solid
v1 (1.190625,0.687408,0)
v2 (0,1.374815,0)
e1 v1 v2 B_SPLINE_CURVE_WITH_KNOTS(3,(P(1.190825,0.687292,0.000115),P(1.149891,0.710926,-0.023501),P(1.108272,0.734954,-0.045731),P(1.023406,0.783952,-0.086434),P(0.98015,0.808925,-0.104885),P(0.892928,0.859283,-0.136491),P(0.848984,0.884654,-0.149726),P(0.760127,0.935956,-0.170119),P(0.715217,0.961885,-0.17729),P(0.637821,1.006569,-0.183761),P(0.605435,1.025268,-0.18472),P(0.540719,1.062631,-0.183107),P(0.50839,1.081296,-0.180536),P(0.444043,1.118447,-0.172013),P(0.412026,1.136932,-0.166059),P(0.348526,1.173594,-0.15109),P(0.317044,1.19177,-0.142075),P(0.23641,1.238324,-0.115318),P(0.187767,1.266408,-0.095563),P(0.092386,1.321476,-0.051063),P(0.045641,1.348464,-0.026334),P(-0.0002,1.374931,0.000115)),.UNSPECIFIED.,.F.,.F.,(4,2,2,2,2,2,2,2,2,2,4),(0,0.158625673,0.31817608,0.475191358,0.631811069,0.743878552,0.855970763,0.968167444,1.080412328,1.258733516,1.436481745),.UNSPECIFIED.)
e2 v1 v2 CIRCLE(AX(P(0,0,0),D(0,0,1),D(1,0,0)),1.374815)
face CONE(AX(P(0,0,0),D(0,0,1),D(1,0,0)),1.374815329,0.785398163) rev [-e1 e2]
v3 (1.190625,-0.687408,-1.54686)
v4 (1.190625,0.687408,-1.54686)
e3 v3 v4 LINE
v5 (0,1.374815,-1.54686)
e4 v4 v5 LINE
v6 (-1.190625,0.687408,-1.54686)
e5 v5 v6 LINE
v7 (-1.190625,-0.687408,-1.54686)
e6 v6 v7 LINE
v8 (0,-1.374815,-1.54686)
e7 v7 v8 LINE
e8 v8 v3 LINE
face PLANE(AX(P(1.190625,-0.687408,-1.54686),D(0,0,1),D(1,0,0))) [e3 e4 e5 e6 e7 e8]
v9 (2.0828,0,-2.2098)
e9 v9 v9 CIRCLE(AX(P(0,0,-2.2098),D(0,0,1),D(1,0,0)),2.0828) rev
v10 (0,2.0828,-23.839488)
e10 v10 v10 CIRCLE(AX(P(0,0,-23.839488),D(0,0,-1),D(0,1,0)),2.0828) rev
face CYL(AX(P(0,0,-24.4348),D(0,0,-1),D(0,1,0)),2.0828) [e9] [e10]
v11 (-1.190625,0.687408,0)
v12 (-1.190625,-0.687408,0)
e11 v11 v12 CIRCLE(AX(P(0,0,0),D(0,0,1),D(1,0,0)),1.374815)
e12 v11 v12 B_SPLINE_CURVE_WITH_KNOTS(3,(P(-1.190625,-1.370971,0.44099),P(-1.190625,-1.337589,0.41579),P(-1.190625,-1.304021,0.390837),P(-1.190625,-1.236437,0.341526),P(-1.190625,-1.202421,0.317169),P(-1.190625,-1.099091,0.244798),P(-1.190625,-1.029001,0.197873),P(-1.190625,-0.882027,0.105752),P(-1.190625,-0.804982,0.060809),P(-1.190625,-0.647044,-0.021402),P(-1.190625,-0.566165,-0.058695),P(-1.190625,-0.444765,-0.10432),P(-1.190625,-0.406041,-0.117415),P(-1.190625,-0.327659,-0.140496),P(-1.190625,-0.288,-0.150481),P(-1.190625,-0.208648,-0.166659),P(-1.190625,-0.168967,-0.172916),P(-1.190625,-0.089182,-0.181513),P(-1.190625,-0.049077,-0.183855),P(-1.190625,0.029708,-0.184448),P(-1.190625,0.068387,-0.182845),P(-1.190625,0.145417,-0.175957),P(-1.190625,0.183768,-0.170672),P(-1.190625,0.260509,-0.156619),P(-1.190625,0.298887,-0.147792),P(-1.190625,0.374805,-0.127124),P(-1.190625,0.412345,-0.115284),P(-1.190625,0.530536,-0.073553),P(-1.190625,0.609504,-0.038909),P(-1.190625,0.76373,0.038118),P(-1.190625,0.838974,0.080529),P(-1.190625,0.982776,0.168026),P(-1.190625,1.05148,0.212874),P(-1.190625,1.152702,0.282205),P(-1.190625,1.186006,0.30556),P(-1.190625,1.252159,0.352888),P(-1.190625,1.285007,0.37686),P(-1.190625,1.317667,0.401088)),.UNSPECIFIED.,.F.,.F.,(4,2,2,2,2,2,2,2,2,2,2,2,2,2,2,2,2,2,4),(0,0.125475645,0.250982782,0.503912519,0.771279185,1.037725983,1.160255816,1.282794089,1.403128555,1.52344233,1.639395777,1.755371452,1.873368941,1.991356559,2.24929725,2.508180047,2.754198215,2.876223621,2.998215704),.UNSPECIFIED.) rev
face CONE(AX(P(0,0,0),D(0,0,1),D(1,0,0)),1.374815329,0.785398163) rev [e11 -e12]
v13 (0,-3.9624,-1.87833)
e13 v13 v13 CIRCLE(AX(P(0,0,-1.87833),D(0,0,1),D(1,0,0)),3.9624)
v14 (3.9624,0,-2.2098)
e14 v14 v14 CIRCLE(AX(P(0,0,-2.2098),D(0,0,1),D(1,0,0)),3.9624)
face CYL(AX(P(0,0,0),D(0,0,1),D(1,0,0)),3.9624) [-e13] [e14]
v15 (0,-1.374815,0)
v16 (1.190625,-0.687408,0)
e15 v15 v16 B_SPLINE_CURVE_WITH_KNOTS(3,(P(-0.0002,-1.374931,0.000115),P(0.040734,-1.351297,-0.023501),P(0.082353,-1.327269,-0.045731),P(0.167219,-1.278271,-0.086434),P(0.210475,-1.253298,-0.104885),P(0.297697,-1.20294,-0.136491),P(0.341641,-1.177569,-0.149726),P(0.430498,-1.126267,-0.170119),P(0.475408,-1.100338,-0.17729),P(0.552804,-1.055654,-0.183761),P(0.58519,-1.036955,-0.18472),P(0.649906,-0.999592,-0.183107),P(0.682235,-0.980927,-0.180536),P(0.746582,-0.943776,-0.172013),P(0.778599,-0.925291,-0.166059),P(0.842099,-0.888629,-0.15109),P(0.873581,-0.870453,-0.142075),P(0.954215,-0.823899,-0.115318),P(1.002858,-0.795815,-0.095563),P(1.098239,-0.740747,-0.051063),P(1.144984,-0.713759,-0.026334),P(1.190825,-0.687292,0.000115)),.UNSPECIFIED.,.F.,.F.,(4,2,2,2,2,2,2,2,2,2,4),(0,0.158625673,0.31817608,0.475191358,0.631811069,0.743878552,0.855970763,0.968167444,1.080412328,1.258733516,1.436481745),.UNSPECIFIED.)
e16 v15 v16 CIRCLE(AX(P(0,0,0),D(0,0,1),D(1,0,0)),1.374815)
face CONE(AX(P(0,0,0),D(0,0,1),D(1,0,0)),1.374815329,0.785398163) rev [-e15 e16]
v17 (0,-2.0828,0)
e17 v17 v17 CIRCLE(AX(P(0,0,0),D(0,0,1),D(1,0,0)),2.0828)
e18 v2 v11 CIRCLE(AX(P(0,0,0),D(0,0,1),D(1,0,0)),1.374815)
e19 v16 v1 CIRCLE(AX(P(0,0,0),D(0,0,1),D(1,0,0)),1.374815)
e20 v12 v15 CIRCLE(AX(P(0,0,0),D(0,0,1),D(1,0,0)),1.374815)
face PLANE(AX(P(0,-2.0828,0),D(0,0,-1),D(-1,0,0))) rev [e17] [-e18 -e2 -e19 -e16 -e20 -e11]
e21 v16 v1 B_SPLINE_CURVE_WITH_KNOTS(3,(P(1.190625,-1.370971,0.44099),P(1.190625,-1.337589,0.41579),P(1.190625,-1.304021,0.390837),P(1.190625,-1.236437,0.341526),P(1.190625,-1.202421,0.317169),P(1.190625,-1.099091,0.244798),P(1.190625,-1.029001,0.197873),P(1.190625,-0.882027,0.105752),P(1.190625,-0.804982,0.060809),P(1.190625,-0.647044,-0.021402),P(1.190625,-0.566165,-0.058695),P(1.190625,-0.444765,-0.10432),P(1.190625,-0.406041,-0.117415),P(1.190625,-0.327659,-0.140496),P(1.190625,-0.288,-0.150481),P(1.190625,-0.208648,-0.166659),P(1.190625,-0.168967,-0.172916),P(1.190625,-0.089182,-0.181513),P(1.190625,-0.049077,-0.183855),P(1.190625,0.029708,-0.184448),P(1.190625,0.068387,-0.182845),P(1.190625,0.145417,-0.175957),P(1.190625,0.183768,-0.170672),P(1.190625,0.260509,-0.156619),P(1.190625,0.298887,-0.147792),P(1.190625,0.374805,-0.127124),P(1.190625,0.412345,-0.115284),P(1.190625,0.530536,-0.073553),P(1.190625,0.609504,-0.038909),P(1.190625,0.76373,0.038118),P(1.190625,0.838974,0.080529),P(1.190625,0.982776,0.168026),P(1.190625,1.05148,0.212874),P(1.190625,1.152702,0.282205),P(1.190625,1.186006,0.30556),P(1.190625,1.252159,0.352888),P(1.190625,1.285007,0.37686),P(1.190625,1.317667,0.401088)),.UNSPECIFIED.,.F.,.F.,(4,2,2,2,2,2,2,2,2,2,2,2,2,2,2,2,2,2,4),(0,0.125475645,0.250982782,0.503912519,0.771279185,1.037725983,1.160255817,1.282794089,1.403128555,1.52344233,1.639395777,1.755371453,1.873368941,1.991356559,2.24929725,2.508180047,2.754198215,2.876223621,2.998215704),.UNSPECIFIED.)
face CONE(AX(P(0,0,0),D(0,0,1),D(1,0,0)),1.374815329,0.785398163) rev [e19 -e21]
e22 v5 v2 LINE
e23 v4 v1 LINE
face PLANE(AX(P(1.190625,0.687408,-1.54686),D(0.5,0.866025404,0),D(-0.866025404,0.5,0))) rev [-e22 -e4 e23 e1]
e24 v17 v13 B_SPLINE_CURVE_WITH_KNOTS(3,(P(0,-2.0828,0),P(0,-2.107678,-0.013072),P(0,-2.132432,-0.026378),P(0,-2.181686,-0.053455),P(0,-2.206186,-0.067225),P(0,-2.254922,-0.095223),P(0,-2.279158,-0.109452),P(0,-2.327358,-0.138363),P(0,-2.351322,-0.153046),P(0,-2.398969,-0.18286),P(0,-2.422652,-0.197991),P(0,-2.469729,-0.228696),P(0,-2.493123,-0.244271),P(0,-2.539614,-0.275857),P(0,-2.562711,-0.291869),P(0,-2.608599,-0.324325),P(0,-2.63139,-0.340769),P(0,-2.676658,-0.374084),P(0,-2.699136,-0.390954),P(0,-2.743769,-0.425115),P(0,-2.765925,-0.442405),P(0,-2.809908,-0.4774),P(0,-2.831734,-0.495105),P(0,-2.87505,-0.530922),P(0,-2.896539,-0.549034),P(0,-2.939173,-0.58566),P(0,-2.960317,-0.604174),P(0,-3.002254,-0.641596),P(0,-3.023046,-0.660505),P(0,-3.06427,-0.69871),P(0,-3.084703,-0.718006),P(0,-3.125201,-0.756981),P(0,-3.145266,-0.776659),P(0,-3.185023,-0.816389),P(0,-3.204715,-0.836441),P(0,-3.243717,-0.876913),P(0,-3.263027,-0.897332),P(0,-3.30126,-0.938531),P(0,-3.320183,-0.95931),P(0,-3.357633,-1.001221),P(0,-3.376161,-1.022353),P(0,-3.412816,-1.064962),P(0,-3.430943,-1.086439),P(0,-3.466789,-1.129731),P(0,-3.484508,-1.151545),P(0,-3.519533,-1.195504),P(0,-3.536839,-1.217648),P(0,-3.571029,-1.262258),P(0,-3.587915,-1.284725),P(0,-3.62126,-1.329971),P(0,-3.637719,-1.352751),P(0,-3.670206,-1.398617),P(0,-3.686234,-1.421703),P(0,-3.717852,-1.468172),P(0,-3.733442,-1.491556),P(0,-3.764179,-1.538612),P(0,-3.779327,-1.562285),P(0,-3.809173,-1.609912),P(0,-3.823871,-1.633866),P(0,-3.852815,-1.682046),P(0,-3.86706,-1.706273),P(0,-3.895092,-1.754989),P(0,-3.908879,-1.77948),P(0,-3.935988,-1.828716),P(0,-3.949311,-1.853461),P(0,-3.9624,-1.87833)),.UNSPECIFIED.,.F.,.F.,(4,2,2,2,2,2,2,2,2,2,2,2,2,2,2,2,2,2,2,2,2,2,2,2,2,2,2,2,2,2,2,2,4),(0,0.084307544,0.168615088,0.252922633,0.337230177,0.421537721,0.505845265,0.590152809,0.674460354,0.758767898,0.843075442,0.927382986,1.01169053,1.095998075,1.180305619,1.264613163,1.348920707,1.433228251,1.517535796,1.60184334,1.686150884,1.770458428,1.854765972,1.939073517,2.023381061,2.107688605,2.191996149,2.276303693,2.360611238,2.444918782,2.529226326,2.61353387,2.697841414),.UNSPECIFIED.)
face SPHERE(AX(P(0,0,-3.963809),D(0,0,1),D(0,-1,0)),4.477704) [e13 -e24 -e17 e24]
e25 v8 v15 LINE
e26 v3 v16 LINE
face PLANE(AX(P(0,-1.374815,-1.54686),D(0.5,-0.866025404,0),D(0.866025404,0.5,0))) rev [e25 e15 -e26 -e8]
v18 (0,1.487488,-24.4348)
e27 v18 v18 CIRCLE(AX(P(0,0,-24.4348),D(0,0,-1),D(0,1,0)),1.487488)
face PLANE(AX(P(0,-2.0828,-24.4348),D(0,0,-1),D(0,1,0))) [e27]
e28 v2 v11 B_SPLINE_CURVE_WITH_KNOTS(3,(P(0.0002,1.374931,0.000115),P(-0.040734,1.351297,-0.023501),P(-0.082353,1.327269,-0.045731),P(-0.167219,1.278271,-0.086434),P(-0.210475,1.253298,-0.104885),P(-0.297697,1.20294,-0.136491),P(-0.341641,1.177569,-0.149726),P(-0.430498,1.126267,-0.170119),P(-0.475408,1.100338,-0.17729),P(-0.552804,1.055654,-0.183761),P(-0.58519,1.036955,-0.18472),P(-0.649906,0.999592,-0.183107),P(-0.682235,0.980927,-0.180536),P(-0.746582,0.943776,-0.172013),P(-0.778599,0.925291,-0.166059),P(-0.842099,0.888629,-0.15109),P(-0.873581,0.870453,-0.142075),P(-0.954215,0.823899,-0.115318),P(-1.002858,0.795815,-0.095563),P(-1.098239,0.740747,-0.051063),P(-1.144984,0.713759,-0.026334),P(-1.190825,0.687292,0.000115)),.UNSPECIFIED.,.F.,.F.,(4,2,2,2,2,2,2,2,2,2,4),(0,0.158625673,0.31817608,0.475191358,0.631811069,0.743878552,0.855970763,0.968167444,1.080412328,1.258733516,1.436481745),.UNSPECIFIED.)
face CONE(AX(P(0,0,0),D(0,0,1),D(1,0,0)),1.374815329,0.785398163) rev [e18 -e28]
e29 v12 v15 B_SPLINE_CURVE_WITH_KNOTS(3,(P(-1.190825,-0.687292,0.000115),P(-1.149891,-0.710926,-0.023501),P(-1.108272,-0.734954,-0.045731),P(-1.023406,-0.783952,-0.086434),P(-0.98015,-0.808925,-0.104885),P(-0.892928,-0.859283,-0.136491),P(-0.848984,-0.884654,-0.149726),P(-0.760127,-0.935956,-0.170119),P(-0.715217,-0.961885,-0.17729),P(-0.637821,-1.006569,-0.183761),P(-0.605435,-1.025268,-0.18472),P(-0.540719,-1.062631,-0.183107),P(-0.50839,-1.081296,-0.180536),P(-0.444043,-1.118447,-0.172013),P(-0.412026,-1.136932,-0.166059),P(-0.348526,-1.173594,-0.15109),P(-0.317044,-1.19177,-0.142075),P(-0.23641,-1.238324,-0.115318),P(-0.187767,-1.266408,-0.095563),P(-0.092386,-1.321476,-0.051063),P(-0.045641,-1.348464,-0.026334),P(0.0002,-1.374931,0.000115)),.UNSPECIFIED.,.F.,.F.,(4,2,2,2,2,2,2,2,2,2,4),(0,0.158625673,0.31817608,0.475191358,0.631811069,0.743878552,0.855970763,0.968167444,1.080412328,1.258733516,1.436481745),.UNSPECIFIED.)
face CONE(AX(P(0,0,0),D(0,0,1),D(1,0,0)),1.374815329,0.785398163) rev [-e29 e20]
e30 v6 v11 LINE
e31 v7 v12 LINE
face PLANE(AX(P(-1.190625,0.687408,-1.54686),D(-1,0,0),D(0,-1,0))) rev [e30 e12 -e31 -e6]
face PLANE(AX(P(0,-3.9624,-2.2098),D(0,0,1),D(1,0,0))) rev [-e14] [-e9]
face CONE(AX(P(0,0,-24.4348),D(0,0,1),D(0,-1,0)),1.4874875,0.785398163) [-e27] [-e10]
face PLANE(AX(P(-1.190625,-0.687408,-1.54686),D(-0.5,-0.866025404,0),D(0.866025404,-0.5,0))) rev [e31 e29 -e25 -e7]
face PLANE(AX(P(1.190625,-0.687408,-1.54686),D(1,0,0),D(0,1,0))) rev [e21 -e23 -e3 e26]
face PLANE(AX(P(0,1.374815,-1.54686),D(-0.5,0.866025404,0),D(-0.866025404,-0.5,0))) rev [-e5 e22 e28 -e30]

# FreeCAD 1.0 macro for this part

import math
import FreeCAD as App
import Part
import Sketcher

V = App.Vector
Q = App.Units.Quantity


def edges_at(feature, points):
    """Names of the edges that pass closest to the given points."""
    edges = feature.Shape.Edges
    near = lambda p: min(range(len(edges)), key=lambda i: edges[i].distToShape(Part.Vertex(*p))[0])
    return sorted({f"Edge{near(p) + 1}" for p in points})

doc = App.newDocument("Part")
params = doc.addObject("Spreadsheet::Sheet", "Params")
for row, (alias, value) in enumerate([
    ("sketch1_width", "0.082 in"),
    ("sketch1_height", "0.875 in"),
    ("revolution_angle", "360 deg"),
    ("chamfer_size", "0.595313 mm"),
    ("sketch2_width", "0.082 in"),
    ("sketch2_width2", "0.156 in"),
    ("sketch2_height", "0.087 in"),
    ("revolution2_angle", "360 deg"),
    ("pocket1_length", "0.0609 in"),
    ("groove_angle", "360 deg"),
], start=1):
    params.set(f"A{row}", alias)
    params.set(f"B{row}", "=" + value)
    params.setAlias(f"B{row}", alias)

body = doc.addObject("PartDesign::Body", "Body")

# Sketch on YZ plane
sketch1 = body.newObject("Sketcher::SketchObject", "Sketch")
sketch1.AttachmentSupport = (doc.getObject("YZ_Plane"), [""])
sketch1.MapMode = "FlatFace"
sketch1.addGeometry([
    Part.LineSegment(V(2.1, -2.2, 0), V(0, -2.2, 0)),
    Part.LineSegment(V(0, -2.2, 0), V(0, -24.4, 0)),
    Part.LineSegment(V(0, -24.4, 0), V(2.1, -24.4, 0)),
    Part.LineSegment(V(2.1, -24.4, 0), V(2.1, -2.2, 0)),
], False)
sketch1.addConstraint([
    Sketcher.Constraint("Coincident", 0, 2, 1, 1),
    Sketcher.Constraint("Coincident", 1, 2, 2, 1),
    Sketcher.Constraint("Coincident", 2, 2, 3, 1),
    Sketcher.Constraint("Coincident", 3, 2, 0, 1),
    Sketcher.Constraint("Horizontal", 0),
    Sketcher.Constraint("Vertical", 1),
    Sketcher.Constraint("Horizontal", 2),
    Sketcher.Constraint("Vertical", 3),
    Sketcher.Constraint("PointOnObject", 0, 2, -2),
    Sketcher.Constraint("DistanceX", 0, 2, 0, 1, Q("0.082 in")),
    Sketcher.Constraint("DistanceY", 1, 2, 1, 1, Q("0.875 in")),
    Sketcher.Constraint("DistanceY", 0, 2, -1, 1, Q("0.087 in")),
])
sketch1.setExpression("Constraints[9]", "Params.sketch1_width")
sketch1.setExpression("Constraints[10]", "Params.sketch1_height")
revolution = body.newObject("PartDesign::Revolution", "Revolution")
revolution.Profile = sketch1
revolution.ReferenceAxis = (sketch1, ["V_Axis"])
revolution.setExpression("Angle", "Params.revolution_angle")
doc.recompute()

chamfer = body.newObject("PartDesign::Chamfer", "Chamfer")
chamfer.Base = (revolution, edges_at(revolution, [(0, -2.083, -24.435)]))
chamfer.setExpression("Size", "Params.chamfer_size")

# Sketch on YZ plane
sketch2 = body.newObject("Sketcher::SketchObject", "Sketch001")
sketch2.AttachmentSupport = (doc.getObject("YZ_Plane"), [""])
sketch2.MapMode = "FlatFace"
sketch2.addGeometry([
    Part.LineSegment(V(3.96, -2.21, 0), V(3.96, -1.88, 0)),  # 0
    Part.ArcOfCircle(Part.Circle(V(0, -3.96, 0), V(0, 0, 1), 4.48), math.radians(28), math.radians(62)),  # 1
    Part.LineSegment(V(2.08, 0, 0), V(0, 0, 0)),  # 2
    Part.LineSegment(V(0, 0, 0), V(0, -2.21, 0)),  # 3
    Part.LineSegment(V(0, -2.21, 0), V(3.96, -2.21, 0)),  # 4
], False)
sketch2.addConstraint([
    Sketcher.Constraint("Coincident", 0, 2, 1, 1),
    Sketcher.Constraint("Coincident", 1, 2, 2, 1),
    Sketcher.Constraint("Coincident", 2, 2, 3, 1),
    Sketcher.Constraint("Coincident", 3, 2, 4, 1),
    Sketcher.Constraint("Coincident", 4, 2, 0, 1),
    Sketcher.Constraint("Vertical", 0),
    Sketcher.Constraint("Horizontal", 2),
    Sketcher.Constraint("Vertical", 3),
    Sketcher.Constraint("Horizontal", 4),
    Sketcher.Constraint("Coincident", 2, 2, -1, 1),
    Sketcher.Constraint("PointOnObject", 1, 3, -2),
    Sketcher.Constraint("DistanceX", 2, 2, 2, 1, Q("0.082 in")),
    Sketcher.Constraint("DistanceX", 4, 1, 4, 2, Q("0.156 in")),
    Sketcher.Constraint("DistanceY", 3, 2, 3, 1, Q("0.087 in")),
    Sketcher.Constraint("Radius", 1, 4.477704),
])
sketch2.setExpression("Constraints[11]", "Params.sketch2_width")
sketch2.setExpression("Constraints[12]", "Params.sketch2_width2")
sketch2.setExpression("Constraints[13]", "Params.sketch2_height")
revolution2 = body.newObject("PartDesign::Revolution", "Revolution001")
revolution2.Profile = sketch2
revolution2.ReferenceAxis = (sketch2, ["V_Axis"])
revolution2.setExpression("Angle", "Params.revolution2_angle")

# Sketch on XY plane
sketch3 = body.newObject("Sketcher::SketchObject", "Sketch002")
sketch3.AttachmentSupport = (doc.getObject("XY_Plane"), [""])
sketch3.MapMode = "FlatFace"
sketch3.addGeometry([
    Part.LineSegment(V(1.2, -0.7, 0), V(1.2, 0.7, 0)),  # 0
    Part.LineSegment(V(1.2, 0.7, 0), V(0, 1.4, 0)),  # 1
    Part.LineSegment(V(0, 1.4, 0), V(-1.2, 0.7, 0)),  # 2
    Part.LineSegment(V(-1.2, 0.7, 0), V(-1.2, -0.7, 0)),  # 3
    Part.LineSegment(V(-1.2, -0.7, 0), V(0, -1.4, 0)),  # 4
    Part.LineSegment(V(0, -1.4, 0), V(1.2, -0.7, 0)),  # 5
], False)
sketch3.addConstraint([
    Sketcher.Constraint("Coincident", 0, 2, 1, 1),
    Sketcher.Constraint("Coincident", 1, 2, 2, 1),
    Sketcher.Constraint("Coincident", 2, 2, 3, 1),
    Sketcher.Constraint("Coincident", 3, 2, 4, 1),
    Sketcher.Constraint("Coincident", 4, 2, 5, 1),
    Sketcher.Constraint("Coincident", 5, 2, 0, 1),
    Sketcher.Constraint("Vertical", 0),
    Sketcher.Constraint("Vertical", 3),
    Sketcher.Constraint("Symmetric", 0, 2, 3, 2, -1, 1),
    Sketcher.Constraint("Symmetric", 1, 2, 4, 2, -1, 1),
    Sketcher.Constraint("PointOnObject", 1, 2, -2),
    Sketcher.Constraint("Parallel", 2, 5),
    Sketcher.Constraint("Horizontal", 0, 2, 2, 2),
    Sketcher.Constraint("Angle", 1, Q("150 deg")),
    Sketcher.Constraint("DistanceX", -1, 1, 0, 2, Q("0.046875 in")),
    Sketcher.Constraint("DistanceY", 0, 1, 0, 2, 1.374815),
])
pocket1 = body.newObject("PartDesign::Pocket", "Pocket")
pocket1.Profile = sketch3
pocket1.setExpression("Length", "Params.pocket1_length")

# Sketch on YZ plane
sketch4 = body.newObject("Sketcher::SketchObject", "Sketch003")
sketch4.AttachmentSupport = (doc.getObject("YZ_Plane"), [""])
sketch4.MapMode = "FlatFace"
sketch4.addGeometry([
    Part.LineSegment(V(0, 0, 0), V(-1.4, 0, 0)),
    Part.LineSegment(V(-1.4, 0, 0), V(0, -1.4, 0)),
    Part.LineSegment(V(0, -1.4, 0), V(0, 0, 0)),
], False)
sketch4.addConstraint([
    Sketcher.Constraint("Coincident", 0, 2, 1, 1),
    Sketcher.Constraint("Coincident", 1, 2, 2, 1),
    Sketcher.Constraint("Coincident", 2, 2, 0, 1),
    Sketcher.Constraint("Horizontal", 0),
    Sketcher.Constraint("Vertical", 2),
    Sketcher.Constraint("Coincident", 2, 2, -1, 1),
    Sketcher.Constraint("Equal", 0, 2),
    Sketcher.Constraint("DistanceX", 0, 2, 0, 1, 1.374815),
])
groove = body.newObject("PartDesign::Groove", "Groove")
groove.Profile = sketch4
groove.ReferenceAxis = (sketch4, ["V_Axis"])
groove.setExpression("Angle", "Params.groove_angle")

doc.recompute()
